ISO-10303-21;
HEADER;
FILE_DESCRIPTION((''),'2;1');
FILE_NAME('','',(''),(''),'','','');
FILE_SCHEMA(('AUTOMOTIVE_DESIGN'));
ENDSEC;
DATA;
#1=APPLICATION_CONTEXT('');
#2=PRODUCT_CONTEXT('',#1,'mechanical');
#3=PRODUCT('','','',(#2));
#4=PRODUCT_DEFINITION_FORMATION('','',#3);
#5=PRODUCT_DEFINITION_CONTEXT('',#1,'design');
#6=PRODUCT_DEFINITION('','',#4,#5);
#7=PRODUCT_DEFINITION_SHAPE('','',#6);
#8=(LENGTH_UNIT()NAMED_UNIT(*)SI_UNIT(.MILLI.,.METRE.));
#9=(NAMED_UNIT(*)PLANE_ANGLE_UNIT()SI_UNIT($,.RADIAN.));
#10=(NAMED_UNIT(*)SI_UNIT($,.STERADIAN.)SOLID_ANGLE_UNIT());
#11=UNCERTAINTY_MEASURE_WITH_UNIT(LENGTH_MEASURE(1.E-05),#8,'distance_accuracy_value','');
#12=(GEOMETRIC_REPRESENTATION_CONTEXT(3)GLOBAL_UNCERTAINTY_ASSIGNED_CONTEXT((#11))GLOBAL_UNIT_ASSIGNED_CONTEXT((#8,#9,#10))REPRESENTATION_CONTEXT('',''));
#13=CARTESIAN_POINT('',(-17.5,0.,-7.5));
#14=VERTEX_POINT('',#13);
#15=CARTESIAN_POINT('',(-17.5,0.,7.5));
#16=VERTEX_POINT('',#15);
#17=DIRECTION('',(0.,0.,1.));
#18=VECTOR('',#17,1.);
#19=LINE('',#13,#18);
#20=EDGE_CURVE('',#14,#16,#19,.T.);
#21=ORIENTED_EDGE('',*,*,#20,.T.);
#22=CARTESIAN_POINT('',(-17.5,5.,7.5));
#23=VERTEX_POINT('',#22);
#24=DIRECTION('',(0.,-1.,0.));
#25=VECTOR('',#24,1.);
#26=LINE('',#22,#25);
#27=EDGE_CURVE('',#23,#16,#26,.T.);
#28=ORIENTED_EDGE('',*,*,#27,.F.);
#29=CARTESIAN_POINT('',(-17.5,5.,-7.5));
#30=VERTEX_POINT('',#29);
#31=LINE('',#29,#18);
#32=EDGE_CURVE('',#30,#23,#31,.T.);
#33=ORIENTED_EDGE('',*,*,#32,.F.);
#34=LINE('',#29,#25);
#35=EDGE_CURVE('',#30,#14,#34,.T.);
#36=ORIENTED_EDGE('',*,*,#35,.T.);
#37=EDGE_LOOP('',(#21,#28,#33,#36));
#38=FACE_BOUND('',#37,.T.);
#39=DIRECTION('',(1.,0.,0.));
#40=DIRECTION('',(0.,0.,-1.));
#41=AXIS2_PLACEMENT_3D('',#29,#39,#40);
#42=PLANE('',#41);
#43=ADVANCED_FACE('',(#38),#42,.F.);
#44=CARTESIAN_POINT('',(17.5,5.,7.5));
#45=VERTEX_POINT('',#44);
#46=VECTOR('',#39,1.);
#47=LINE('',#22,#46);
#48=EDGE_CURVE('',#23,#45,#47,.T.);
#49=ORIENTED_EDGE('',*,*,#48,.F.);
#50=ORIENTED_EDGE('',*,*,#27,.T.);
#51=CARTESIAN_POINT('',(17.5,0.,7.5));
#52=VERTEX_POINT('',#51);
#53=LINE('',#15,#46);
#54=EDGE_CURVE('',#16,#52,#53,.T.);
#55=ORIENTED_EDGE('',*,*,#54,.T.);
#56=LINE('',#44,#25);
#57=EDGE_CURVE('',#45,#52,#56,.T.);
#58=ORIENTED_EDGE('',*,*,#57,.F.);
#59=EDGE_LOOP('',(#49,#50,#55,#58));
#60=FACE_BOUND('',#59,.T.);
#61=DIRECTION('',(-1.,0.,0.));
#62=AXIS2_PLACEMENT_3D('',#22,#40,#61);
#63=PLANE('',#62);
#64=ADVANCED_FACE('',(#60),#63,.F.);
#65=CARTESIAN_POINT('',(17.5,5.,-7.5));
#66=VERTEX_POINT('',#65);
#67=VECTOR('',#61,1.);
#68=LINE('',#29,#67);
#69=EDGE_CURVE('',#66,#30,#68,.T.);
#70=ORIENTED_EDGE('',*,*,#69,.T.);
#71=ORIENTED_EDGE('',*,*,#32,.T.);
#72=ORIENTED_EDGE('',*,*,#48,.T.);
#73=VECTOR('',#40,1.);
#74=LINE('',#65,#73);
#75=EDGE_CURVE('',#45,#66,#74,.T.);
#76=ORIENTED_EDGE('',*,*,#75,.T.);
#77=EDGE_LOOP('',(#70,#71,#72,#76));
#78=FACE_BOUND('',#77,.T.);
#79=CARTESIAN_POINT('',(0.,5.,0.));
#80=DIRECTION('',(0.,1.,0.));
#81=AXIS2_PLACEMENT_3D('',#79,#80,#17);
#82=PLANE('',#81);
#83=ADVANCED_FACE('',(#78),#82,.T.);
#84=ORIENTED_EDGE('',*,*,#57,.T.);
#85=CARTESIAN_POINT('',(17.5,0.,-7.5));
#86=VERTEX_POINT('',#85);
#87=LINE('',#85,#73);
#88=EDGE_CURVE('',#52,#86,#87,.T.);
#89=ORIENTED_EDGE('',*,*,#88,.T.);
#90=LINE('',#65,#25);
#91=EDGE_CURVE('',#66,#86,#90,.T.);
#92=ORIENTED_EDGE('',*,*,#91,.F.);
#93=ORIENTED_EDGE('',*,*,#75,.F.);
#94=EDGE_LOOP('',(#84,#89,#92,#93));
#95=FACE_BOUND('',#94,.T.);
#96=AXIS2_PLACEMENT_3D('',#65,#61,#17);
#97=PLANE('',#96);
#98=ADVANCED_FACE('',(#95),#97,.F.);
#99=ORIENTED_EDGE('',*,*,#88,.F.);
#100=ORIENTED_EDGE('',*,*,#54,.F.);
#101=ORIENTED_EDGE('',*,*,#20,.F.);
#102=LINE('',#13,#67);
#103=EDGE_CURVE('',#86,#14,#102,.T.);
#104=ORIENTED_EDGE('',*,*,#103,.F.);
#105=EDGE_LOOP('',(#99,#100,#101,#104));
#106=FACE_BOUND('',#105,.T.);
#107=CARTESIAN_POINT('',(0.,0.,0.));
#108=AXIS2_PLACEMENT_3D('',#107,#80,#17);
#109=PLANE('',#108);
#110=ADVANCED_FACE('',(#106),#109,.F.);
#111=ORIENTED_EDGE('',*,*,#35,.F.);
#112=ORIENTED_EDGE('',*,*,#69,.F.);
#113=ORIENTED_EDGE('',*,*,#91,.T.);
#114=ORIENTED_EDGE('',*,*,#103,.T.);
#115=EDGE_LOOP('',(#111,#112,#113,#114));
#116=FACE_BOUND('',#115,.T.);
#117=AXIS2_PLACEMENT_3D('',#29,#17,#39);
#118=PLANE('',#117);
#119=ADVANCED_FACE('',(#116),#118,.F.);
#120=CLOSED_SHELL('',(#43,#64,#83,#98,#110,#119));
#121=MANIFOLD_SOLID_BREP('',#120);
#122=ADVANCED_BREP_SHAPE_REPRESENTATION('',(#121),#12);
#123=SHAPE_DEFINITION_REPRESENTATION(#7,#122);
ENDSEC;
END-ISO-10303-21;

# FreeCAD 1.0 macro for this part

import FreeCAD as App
import Part
import Sketcher
from FreeCAD import Vector

doc = App.newDocument("Part")
body = doc.addObject("PartDesign::Body", "Body")

# Sketch on XZ plane
sketch1 = doc.addObject("Sketcher::SketchObject", "Sketch")
body.addObject(sketch1)
sketch1.AttachmentSupport = (doc.XZ_Plane, [""])
sketch1.MapMode = "FlatFace"
sketch1.addGeometry([
    Part.LineSegment(Vector(-18, -8, 0), Vector(-18, 8, 0)),
    Part.LineSegment(Vector(-18, 8, 0), Vector(18, 8, 0)),
    Part.LineSegment(Vector(18, 8, 0), Vector(18, -8, 0)),
    Part.LineSegment(Vector(18, -8, 0), Vector(-18, -8, 0)),
], False)
sketch1.addConstraint([
    Sketcher.Constraint("Coincident", 0, 2, 1, 1),
    Sketcher.Constraint("Coincident", 1, 2, 2, 1),
    Sketcher.Constraint("Coincident", 2, 2, 3, 1),
    Sketcher.Constraint("Coincident", 3, 2, 0, 1),
    Sketcher.Constraint("Vertical", 0),
    Sketcher.Constraint("Horizontal", 1),
    Sketcher.Constraint("Vertical", 2),
    Sketcher.Constraint("Horizontal", 3),
    Sketcher.Constraint("Symmetric", 0, 2, 2, 2, -1, 1),
    Sketcher.Constraint("DistanceX", 1, 1, 1, 2, 35.0),
    Sketcher.Constraint("DistanceY", 0, 1, 0, 2, 15.0),
])
pad1 = doc.addObject("PartDesign::Pad", "Pad")
body.addObject(pad1)
pad1.Profile = sketch1
pad1.Length = 5
pad1.Reversed = True

doc.recompute()
